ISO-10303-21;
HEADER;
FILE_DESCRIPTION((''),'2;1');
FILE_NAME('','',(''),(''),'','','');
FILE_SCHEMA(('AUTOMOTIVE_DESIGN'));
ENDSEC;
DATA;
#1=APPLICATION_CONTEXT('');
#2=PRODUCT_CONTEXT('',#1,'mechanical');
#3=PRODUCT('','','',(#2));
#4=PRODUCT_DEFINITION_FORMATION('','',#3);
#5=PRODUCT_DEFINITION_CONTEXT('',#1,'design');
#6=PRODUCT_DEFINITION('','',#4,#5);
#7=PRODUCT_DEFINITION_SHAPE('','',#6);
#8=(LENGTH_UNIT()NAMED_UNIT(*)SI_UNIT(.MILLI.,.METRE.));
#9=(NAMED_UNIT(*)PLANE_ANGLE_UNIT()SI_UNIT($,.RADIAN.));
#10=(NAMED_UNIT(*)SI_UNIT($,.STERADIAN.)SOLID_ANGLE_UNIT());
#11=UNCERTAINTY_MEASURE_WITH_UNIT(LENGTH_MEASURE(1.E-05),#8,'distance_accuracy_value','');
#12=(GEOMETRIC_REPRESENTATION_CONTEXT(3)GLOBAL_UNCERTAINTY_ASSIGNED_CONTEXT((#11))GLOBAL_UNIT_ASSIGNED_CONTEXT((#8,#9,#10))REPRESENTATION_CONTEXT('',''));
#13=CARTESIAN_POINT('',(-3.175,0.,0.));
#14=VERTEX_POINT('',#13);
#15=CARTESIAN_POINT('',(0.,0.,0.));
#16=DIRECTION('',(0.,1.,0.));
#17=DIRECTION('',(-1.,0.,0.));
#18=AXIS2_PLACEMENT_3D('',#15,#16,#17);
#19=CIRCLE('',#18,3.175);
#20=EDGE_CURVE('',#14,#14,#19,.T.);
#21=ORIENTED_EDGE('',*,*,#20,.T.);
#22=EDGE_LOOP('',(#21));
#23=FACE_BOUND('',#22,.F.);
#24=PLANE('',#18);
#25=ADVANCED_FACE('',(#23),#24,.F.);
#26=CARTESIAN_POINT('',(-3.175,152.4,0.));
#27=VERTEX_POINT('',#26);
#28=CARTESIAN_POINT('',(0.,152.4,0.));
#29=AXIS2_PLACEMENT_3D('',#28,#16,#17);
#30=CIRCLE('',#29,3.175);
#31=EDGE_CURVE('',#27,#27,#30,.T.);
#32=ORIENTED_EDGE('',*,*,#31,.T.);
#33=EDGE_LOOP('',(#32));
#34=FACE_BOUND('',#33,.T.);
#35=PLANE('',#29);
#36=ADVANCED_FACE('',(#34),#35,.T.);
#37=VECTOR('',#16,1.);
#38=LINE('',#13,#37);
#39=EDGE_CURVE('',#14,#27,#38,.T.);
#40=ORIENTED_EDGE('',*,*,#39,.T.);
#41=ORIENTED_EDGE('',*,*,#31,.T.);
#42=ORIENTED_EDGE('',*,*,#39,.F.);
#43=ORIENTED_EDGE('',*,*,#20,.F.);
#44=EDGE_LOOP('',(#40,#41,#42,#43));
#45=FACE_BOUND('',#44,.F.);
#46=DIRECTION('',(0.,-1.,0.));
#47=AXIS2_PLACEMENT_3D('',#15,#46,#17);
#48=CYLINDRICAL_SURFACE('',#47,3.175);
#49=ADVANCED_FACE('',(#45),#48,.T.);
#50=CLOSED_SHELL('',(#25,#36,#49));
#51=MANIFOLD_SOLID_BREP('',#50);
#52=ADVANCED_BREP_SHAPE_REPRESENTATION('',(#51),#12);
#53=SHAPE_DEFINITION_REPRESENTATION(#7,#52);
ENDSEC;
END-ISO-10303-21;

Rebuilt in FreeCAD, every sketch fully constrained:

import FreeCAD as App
import Part
import Sketcher
from FreeCAD import Vector
Q = App.Units.Quantity

doc = App.newDocument("Part")
params = doc.addObject("Spreadsheet::Sheet", "Params")
for row, (alias, value) in enumerate([
    ("sketch1_diameter", "0.25 in"),
    ("pad1_length", "6 in"),
], start=1):
    params.set(f"A{row}", alias)
    params.set(f"B{row}", "=" + value)
    params.setAlias(f"B{row}", alias)

body = doc.addObject("PartDesign::Body", "Body")

# Sketch on XZ plane
sketch1 = body.newObject("Sketcher::SketchObject", "Sketch")
sketch1.AttachmentSupport = (doc.getObject("XZ_Plane"), [""])
sketch1.MapMode = "FlatFace"
sketch1.addGeometry(Part.Circle(Vector(0, 0, 0), Vector(0, 0, 1), 3.175), False)
sketch1.addConstraint([
    Sketcher.Constraint("Coincident", 0, 3, -1, 1),
    Sketcher.Constraint("Diameter", 0, Q("0.25 in")),
])
sketch1.setExpression("Constraints[1]", "Params.sketch1_diameter")
pad1 = body.newObject("PartDesign::Pad", "Pad")
pad1.Profile = sketch1
pad1.setExpression("Length", "Params.pad1_length")
pad1.Reversed = True

doc.recompute()
